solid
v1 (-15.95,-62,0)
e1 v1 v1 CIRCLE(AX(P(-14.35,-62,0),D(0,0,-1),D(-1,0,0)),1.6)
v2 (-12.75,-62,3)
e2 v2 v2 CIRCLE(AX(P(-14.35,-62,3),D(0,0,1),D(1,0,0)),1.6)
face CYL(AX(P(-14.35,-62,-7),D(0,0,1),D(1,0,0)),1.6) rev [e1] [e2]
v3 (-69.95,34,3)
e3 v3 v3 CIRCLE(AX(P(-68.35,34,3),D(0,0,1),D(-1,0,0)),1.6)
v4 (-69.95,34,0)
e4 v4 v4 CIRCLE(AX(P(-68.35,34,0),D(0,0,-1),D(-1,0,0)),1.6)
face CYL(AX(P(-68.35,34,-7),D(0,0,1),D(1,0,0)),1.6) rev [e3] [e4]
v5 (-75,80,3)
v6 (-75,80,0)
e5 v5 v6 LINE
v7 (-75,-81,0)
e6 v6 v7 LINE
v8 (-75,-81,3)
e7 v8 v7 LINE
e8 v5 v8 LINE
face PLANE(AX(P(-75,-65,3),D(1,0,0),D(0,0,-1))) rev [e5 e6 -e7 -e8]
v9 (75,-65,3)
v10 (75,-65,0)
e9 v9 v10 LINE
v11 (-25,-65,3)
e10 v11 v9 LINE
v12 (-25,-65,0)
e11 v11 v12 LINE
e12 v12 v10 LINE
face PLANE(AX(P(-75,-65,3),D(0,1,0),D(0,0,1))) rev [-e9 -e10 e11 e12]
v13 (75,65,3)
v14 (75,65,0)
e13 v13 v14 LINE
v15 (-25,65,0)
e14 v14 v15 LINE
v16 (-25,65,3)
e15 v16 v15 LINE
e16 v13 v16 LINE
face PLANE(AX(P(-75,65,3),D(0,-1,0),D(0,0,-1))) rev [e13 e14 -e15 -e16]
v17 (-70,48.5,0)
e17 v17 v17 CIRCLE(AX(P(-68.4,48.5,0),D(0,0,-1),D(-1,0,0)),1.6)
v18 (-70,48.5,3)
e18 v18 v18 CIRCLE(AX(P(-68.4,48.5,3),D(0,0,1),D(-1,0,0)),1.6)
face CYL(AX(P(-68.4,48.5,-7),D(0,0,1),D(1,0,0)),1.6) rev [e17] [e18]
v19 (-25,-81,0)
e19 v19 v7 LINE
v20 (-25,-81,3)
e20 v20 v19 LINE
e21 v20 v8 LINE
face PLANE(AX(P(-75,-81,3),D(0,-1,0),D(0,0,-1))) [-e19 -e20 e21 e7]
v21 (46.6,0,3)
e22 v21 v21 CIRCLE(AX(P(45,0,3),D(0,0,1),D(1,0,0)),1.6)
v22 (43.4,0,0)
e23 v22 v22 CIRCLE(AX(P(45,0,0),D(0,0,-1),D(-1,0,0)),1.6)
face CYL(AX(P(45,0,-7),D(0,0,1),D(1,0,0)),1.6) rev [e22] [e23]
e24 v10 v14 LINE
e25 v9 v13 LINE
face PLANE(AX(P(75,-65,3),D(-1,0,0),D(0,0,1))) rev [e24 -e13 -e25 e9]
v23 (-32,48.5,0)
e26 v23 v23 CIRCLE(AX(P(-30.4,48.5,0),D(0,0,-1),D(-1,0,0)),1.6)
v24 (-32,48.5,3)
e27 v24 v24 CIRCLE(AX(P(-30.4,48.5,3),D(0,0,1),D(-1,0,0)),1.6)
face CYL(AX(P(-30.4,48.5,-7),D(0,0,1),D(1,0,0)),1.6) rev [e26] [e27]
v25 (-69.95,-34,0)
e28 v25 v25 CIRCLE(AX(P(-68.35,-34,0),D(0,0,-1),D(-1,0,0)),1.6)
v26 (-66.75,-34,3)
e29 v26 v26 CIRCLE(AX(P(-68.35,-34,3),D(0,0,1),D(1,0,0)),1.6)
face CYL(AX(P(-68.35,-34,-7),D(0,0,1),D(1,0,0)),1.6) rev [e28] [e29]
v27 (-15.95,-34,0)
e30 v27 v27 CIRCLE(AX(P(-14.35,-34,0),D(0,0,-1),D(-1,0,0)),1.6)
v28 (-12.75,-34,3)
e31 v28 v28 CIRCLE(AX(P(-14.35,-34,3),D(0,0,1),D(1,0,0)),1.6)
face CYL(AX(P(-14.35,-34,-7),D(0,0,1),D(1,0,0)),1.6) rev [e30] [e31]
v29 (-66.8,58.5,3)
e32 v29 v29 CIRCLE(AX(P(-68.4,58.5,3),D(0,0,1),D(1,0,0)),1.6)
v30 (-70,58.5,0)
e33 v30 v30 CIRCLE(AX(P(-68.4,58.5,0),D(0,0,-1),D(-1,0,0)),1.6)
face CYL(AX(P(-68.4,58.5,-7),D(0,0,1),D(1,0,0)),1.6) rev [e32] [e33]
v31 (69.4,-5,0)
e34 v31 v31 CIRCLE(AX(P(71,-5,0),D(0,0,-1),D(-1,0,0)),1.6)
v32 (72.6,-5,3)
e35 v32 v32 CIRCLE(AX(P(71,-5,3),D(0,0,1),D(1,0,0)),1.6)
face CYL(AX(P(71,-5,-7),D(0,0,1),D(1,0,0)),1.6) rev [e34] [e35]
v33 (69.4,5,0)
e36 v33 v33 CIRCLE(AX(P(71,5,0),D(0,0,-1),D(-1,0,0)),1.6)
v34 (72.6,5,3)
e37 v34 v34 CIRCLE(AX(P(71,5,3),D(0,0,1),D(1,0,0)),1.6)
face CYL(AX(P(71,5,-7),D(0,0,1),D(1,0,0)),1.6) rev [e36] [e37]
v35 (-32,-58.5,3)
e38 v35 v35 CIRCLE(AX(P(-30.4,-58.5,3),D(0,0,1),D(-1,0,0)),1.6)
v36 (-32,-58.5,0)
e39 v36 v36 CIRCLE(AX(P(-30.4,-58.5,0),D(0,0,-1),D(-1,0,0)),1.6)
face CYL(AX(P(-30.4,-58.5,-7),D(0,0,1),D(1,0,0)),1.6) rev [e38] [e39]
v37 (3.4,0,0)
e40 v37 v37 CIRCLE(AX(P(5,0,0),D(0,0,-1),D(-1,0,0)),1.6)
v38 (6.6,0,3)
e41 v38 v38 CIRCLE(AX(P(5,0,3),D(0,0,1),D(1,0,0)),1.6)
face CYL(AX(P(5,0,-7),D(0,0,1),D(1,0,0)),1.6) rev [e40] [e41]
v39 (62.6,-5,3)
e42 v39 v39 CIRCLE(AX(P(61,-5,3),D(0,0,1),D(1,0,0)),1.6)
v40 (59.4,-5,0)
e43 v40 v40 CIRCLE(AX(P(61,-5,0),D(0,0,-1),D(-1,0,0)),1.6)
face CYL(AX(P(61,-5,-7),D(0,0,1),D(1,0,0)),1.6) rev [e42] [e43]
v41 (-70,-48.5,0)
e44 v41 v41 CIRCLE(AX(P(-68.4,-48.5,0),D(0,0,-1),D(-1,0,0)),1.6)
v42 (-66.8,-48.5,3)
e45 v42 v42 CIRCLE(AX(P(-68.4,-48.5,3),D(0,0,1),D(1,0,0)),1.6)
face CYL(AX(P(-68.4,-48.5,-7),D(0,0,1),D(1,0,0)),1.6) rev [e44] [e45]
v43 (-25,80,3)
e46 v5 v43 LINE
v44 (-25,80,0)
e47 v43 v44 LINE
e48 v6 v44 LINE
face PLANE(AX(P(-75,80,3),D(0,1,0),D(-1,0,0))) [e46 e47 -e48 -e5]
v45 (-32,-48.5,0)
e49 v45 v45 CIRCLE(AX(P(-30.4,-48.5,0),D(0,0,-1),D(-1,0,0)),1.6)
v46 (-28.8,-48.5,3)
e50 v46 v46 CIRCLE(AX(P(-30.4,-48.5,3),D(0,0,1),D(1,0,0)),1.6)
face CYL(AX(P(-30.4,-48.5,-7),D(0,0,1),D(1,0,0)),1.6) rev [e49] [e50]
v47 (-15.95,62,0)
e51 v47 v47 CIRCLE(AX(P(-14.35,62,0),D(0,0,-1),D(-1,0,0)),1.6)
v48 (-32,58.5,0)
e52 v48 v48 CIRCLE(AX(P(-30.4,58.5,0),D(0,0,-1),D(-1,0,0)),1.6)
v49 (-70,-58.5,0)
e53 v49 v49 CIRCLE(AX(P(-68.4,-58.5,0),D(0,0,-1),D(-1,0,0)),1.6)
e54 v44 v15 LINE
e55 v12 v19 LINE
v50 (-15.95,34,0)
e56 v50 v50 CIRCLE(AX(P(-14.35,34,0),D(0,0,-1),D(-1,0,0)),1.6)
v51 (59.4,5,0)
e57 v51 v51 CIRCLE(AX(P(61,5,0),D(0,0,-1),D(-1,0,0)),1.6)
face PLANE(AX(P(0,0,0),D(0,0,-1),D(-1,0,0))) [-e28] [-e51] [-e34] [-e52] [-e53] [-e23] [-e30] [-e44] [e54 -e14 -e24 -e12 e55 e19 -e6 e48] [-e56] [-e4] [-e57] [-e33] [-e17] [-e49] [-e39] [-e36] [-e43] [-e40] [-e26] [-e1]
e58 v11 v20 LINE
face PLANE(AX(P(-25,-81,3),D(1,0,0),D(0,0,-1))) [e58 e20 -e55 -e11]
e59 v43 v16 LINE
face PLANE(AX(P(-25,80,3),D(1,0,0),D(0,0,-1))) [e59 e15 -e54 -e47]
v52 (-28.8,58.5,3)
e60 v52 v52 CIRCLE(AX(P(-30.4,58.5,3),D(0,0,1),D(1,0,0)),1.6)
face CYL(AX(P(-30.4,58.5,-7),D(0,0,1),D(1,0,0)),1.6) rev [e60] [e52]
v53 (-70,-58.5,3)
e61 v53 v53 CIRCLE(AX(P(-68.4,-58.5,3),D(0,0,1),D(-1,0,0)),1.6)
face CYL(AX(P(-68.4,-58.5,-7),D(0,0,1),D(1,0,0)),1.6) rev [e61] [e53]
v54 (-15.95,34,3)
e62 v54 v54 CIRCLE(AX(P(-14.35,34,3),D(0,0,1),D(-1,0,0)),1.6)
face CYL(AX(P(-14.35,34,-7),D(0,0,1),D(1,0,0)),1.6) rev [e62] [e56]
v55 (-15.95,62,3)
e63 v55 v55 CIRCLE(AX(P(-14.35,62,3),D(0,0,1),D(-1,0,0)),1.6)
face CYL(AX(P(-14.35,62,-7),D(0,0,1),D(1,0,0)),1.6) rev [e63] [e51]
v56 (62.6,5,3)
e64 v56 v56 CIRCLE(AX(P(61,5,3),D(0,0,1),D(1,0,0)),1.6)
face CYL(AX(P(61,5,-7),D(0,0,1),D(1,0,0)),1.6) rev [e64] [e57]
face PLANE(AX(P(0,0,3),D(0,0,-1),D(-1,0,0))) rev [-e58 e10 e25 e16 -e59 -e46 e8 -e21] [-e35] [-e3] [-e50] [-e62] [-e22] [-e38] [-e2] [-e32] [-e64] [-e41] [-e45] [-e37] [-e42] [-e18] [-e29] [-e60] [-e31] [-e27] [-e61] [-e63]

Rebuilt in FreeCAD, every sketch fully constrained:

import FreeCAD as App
import Part
import Sketcher

V = App.Vector

doc = App.newDocument("Part")
params = doc.addObject("Spreadsheet::Sheet", "Params")
for row, (alias, value) in enumerate([
    ("sketch1_width", "150 mm"),
    ("sketch1_height", "130 mm"),
    ("pad1_length", "3 mm"),
    ("sketch2_width", "50 mm"),
    ("sketch2_height", "15 mm"),
    ("sketch2_height2", "16 mm"),
    ("pad2_length", "3 mm"),
    ("sketch3_diameter", "3.2 mm"),
    ("pocket1_length", "10 mm"),
], start=1):
    params.set(f"A{row}", alias)
    params.set(f"B{row}", "=" + value)
    params.setAlias(f"B{row}", alias)

body = doc.addObject("PartDesign::Body", "Body")

sketch1 = body.newObject("Sketcher::SketchObject", "Sketch")
sketch1.AttachmentSupport = (doc.getObject("XY_Plane"), [""])
sketch1.MapMode = "FlatFace"
sketch1.addGeometry(Part.LineSegment(V(-75, 65, 0), V(-75, -65, 0)), False)
sketch1.addGeometry(Part.LineSegment(V(-75, -65, 0), V(75, -65, 0)), False)
sketch1.addGeometry(Part.LineSegment(V(75, -65, 0), V(75, 65, 0)), False)
sketch1.addGeometry(Part.LineSegment(V(75, 65, 0), V(-75, 65, 0)), False)
sketch1.addConstraint(Sketcher.Constraint("Coincident", 0, 2, 1, 1))
sketch1.addConstraint(Sketcher.Constraint("Coincident", 1, 2, 2, 1))
sketch1.addConstraint(Sketcher.Constraint("Coincident", 2, 2, 3, 1))
sketch1.addConstraint(Sketcher.Constraint("Coincident", 3, 2, 0, 1))
sketch1.addConstraint(Sketcher.Constraint("Vertical", 0))
sketch1.addConstraint(Sketcher.Constraint("Horizontal", 1))
sketch1.addConstraint(Sketcher.Constraint("Vertical", 2))
sketch1.addConstraint(Sketcher.Constraint("Horizontal", 3))
sketch1.addConstraint(Sketcher.Constraint("Symmetric", 0, 2, 2, 2, -1, 1))
sketch1.addConstraint(Sketcher.Constraint("DistanceX", 1, 1, 1, 2, 150.0))
sketch1.addConstraint(Sketcher.Constraint("DistanceY", 0, 2, 0, 1, 130.0))
sketch1.setExpression("Constraints[9]", "Params.sketch1_width")
sketch1.setExpression("Constraints[10]", "Params.sketch1_height")
pad1 = body.newObject("PartDesign::Pad", "Pad")
pad1.Profile = sketch1
pad1.setExpression("Length", "Params.pad1_length")

sketch2 = body.newObject("Sketcher::SketchObject", "Sketch001")
sketch2.AttachmentSupport = (doc.getObject("XY_Plane"), [""])
sketch2.MapMode = "FlatFace"
sketch2.addGeometry(Part.LineSegment(V(-25, 80, 0), V(-25, 65, 0)), False)
sketch2.addGeometry(Part.LineSegment(V(-25, 65, 0), V(-75, 65, 0)), False)
sketch2.addGeometry(Part.LineSegment(V(-75, 65, 0), V(-75, 80, 0)), False)
sketch2.addGeometry(Part.LineSegment(V(-75, 80, 0), V(-25, 80, 0)), False)
sketch2.addGeometry(Part.LineSegment(V(-25, -65, 0), V(-25, -81, 0)), False)
sketch2.addGeometry(Part.LineSegment(V(-25, -81, 0), V(-75, -81, 0)), False)
sketch2.addGeometry(Part.LineSegment(V(-75, -81, 0), V(-75, -65, 0)), False)
sketch2.addGeometry(Part.LineSegment(V(-75, -65, 0), V(-25, -65, 0)), False)
sketch2.addConstraint(Sketcher.Constraint("Coincident", 0, 2, 1, 1))
sketch2.addConstraint(Sketcher.Constraint("Coincident", 1, 2, 2, 1))
sketch2.addConstraint(Sketcher.Constraint("Coincident", 2, 2, 3, 1))
sketch2.addConstraint(Sketcher.Constraint("Coincident", 3, 2, 0, 1))
sketch2.addConstraint(Sketcher.Constraint("Coincident", 4, 2, 5, 1))
sketch2.addConstraint(Sketcher.Constraint("Coincident", 5, 2, 6, 1))
sketch2.addConstraint(Sketcher.Constraint("Coincident", 6, 2, 7, 1))
sketch2.addConstraint(Sketcher.Constraint("Coincident", 7, 2, 4, 1))
sketch2.addConstraint(Sketcher.Constraint("Vertical", 0))
sketch2.addConstraint(Sketcher.Constraint("Horizontal", 1))
sketch2.addConstraint(Sketcher.Constraint("Vertical", 2))
sketch2.addConstraint(Sketcher.Constraint("Horizontal", 3))
sketch2.addConstraint(Sketcher.Constraint("Vertical", 4))
sketch2.addConstraint(Sketcher.Constraint("Horizontal", 5))
sketch2.addConstraint(Sketcher.Constraint("Vertical", 6))
sketch2.addConstraint(Sketcher.Constraint("Horizontal", 7))
sketch2.addConstraint(Sketcher.Constraint("Symmetric", 1, 2, 6, 2, -1))
sketch2.addConstraint(Sketcher.Constraint("Vertical", 3, 2, 4, 2))
sketch2.addConstraint(Sketcher.Constraint("DistanceX", 1, 2, 1, 1, 50.0))
sketch2.addConstraint(Sketcher.Constraint("DistanceY", 0, 2, 0, 1, 15.0))
sketch2.addConstraint(Sketcher.Constraint("DistanceY", 4, 2, 4, 1, 16.0))
sketch2.addConstraint(Sketcher.Constraint("DistanceX", 0, 2, -1, 1, 25.0))
sketch2.addConstraint(Sketcher.Constraint("DistanceY", -1, 1, 0, 2, 65.0))
sketch2.setExpression("Constraints[18]", "Params.sketch2_width")
sketch2.setExpression("Constraints[19]", "Params.sketch2_height")
sketch2.setExpression("Constraints[20]", "Params.sketch2_height2")
pad2 = body.newObject("PartDesign::Pad", "Pad001")
pad2.Profile = sketch2
pad2.setExpression("Length", "Params.pad2_length")

sketch3 = body.newObject("Sketcher::SketchObject", "Sketch002")
sketch3.AttachmentSupport = (doc.getObject("XY_Plane"), [""])
sketch3.MapMode = "FlatFace"
sketch3.AttachmentOffset = App.Placement(V(0, 0, 3), App.Rotation())
sketch3.addGeometry(Part.Circle(V(-30.4, 58.5, 0), V(0, 0, 1), 1.6), False)
sketch3.addGeometry(Part.Circle(V(-68.4, 58.5, 0), V(0, 0, 1), 1.6), False)
sketch3.addGeometry(Part.Circle(V(-68.4, 48.5, 0), V(0, 0, 1), 1.6), False)
sketch3.addGeometry(Part.Circle(V(-30.4, 48.5, 0), V(0, 0, 1), 1.6), False)
sketch3.addGeometry(Part.Circle(V(-68.4, -48.5, 0), V(0, 0, 1), 1.6), False)
sketch3.addGeometry(Part.Circle(V(-68.4, -58.5, 0), V(0, 0, 1), 1.6), False)
sketch3.addGeometry(Part.Circle(V(-30.4, -58.5, 0), V(0, 0, 1), 1.6), False)
sketch3.addGeometry(Part.Circle(V(-30.4, -48.5, 0), V(0, 0, 1), 1.6), False)
sketch3.addGeometry(Part.Circle(V(71, -5, 0), V(0, 0, 1), 1.6), False)
sketch3.addGeometry(Part.Circle(V(71, 5, 0), V(0, 0, 1), 1.6), False)
sketch3.addGeometry(Part.Circle(V(61, -5, 0), V(0, 0, 1), 1.6), False)
sketch3.addGeometry(Part.Circle(V(61, 5, 0), V(0, 0, 1), 1.6), False)
sketch3.addGeometry(Part.Circle(V(-68.3, -34, 0), V(0, 0, 1), 1.6), False)
sketch3.addGeometry(Part.Circle(V(-14.3, -34, 0), V(0, 0, 1), 1.6), False)
sketch3.addGeometry(Part.Circle(V(-14.3, -62, 0), V(0, 0, 1), 1.6), False)
sketch3.addGeometry(Part.Circle(V(-14.3, 62, 0), V(0, 0, 1), 1.6), False)
sketch3.addGeometry(Part.Circle(V(-14.3, 34, 0), V(0, 0, 1), 1.6), False)
sketch3.addGeometry(Part.Circle(V(-68.3, 34, 0), V(0, 0, 1), 1.6), False)
sketch3.addGeometry(Part.Circle(V(45, 0, 0), V(0, 0, 1), 1.6), False)
sketch3.addGeometry(Part.Circle(V(5, 0, 0), V(0, 0, 1), 1.6), False)
sketch3.addConstraint(Sketcher.Constraint("Equal", 0, 1))
sketch3.addConstraint(Sketcher.Constraint("Equal", 1, 2))
sketch3.addConstraint(Sketcher.Constraint("Equal", 2, 3))
sketch3.addConstraint(Sketcher.Constraint("Equal", 3, 4))
sketch3.addConstraint(Sketcher.Constraint("Equal", 4, 5))
sketch3.addConstraint(Sketcher.Constraint("Equal", 5, 6))
sketch3.addConstraint(Sketcher.Constraint("Equal", 6, 7))
sketch3.addConstraint(Sketcher.Constraint("Equal", 7, 8))
sketch3.addConstraint(Sketcher.Constraint("Equal", 8, 9))
sketch3.addConstraint(Sketcher.Constraint("Equal", 9, 10))
sketch3.addConstraint(Sketcher.Constraint("Equal", 10, 11))
sketch3.addConstraint(Sketcher.Constraint("Equal", 11, 12))
sketch3.addConstraint(Sketcher.Constraint("Equal", 12, 13))
sketch3.addConstraint(Sketcher.Constraint("Equal", 13, 14))
sketch3.addConstraint(Sketcher.Constraint("Equal", 14, 15))
sketch3.addConstraint(Sketcher.Constraint("Equal", 15, 16))
sketch3.addConstraint(Sketcher.Constraint("Equal", 16, 17))
sketch3.addConstraint(Sketcher.Constraint("Equal", 17, 18))
sketch3.addConstraint(Sketcher.Constraint("Equal", 18, 19))
sketch3.addConstraint(Sketcher.Constraint("Symmetric", 2, 3, 4, 3, -1))
sketch3.addConstraint(Sketcher.Constraint("Symmetric", 1, 3, 5, 3, -1))
sketch3.addConstraint(Sketcher.Constraint("Symmetric", 0, 3, 6, 3, -1))
sketch3.addConstraint(Sketcher.Constraint("Symmetric", 3, 3, 7, 3, -1))
sketch3.addConstraint(Sketcher.Constraint("Symmetric", 8, 3, 9, 3, -1))
sketch3.addConstraint(Sketcher.Constraint("Symmetric", 10, 3, 11, 3, -1))
sketch3.addConstraint(Sketcher.Constraint("Symmetric", 14, 3, 15, 3, -1))
sketch3.addConstraint(Sketcher.Constraint("Symmetric", 13, 3, 16, 3, -1))
sketch3.addConstraint(Sketcher.Constraint("Symmetric", 12, 3, 17, 3, -1))
sketch3.addConstraint(Sketcher.Constraint("PointOnObject", 18, 3, -1))
sketch3.addConstraint(Sketcher.Constraint("PointOnObject", 19, 3, -1))
sketch3.addConstraint(Sketcher.Constraint("Horizontal", 0, 3, 1, 3))
sketch3.addConstraint(Sketcher.Constraint("Horizontal", 2, 3, 3, 3))
sketch3.addConstraint(Sketcher.Constraint("Horizontal", 8, 3, 10, 3))
sketch3.addConstraint(Sketcher.Constraint("Horizontal", 12, 3, 13, 3))
sketch3.addConstraint(Sketcher.Constraint("Vertical", 1, 3, 2, 3))
sketch3.addConstraint(Sketcher.Constraint("Vertical", 0, 3, 3, 3))
sketch3.addConstraint(Sketcher.Constraint("Vertical", 13, 3, 14, 3))
sketch3.addConstraint(Sketcher.Constraint("Diameter", 0, 3.2))
sketch3.addConstraint(Sketcher.Constraint("DistanceX", -1, 1, 8, 3, 71.0))
sketch3.addConstraint(Sketcher.Constraint("DistanceY", 8, 3, -1, 1, 5.0))
sketch3.addConstraint(Sketcher.Constraint("DistanceX", -1, 1, 10, 3, 61.0))
sketch3.addConstraint(Sketcher.Constraint("DistanceY", 12, 3, -1, 1, 34.0))
sketch3.addConstraint(Sketcher.Constraint("DistanceY", 14, 3, -1, 1, 62.0))
sketch3.addConstraint(Sketcher.Constraint("DistanceX", -1, 1, 18, 3, 45.0))
sketch3.addConstraint(Sketcher.Constraint("DistanceX", -1, 1, 19, 3, 5.0))
sketch3.addConstraint(Sketcher.Constraint("DistanceX", 1, 3, 0, 3, 38.0))
sketch3.addConstraint(Sketcher.Constraint("DistanceY", 2, 3, 1, 3, 10.0))
sketch3.addConstraint(Sketcher.Constraint("DistanceY", 4, 3, 2, 3, 97.0))
sketch3.addConstraint(Sketcher.Constraint("DistanceX", 12, 3, 13, 3, 54.0))
sketch3.addConstraint(Sketcher.Constraint("DistanceX", 0, 3, -1, 1, 30.4))
sketch3.addConstraint(Sketcher.Constraint("DistanceX", 12, 3, -1, 1, 68.35))
sketch3.setExpression("Constraints[37]", "Params.sketch3_diameter")
pocket1 = body.newObject("PartDesign::Pocket", "Pocket")
pocket1.Profile = sketch3
pocket1.setExpression("Length", "Params.pocket1_length")

doc.recompute()
